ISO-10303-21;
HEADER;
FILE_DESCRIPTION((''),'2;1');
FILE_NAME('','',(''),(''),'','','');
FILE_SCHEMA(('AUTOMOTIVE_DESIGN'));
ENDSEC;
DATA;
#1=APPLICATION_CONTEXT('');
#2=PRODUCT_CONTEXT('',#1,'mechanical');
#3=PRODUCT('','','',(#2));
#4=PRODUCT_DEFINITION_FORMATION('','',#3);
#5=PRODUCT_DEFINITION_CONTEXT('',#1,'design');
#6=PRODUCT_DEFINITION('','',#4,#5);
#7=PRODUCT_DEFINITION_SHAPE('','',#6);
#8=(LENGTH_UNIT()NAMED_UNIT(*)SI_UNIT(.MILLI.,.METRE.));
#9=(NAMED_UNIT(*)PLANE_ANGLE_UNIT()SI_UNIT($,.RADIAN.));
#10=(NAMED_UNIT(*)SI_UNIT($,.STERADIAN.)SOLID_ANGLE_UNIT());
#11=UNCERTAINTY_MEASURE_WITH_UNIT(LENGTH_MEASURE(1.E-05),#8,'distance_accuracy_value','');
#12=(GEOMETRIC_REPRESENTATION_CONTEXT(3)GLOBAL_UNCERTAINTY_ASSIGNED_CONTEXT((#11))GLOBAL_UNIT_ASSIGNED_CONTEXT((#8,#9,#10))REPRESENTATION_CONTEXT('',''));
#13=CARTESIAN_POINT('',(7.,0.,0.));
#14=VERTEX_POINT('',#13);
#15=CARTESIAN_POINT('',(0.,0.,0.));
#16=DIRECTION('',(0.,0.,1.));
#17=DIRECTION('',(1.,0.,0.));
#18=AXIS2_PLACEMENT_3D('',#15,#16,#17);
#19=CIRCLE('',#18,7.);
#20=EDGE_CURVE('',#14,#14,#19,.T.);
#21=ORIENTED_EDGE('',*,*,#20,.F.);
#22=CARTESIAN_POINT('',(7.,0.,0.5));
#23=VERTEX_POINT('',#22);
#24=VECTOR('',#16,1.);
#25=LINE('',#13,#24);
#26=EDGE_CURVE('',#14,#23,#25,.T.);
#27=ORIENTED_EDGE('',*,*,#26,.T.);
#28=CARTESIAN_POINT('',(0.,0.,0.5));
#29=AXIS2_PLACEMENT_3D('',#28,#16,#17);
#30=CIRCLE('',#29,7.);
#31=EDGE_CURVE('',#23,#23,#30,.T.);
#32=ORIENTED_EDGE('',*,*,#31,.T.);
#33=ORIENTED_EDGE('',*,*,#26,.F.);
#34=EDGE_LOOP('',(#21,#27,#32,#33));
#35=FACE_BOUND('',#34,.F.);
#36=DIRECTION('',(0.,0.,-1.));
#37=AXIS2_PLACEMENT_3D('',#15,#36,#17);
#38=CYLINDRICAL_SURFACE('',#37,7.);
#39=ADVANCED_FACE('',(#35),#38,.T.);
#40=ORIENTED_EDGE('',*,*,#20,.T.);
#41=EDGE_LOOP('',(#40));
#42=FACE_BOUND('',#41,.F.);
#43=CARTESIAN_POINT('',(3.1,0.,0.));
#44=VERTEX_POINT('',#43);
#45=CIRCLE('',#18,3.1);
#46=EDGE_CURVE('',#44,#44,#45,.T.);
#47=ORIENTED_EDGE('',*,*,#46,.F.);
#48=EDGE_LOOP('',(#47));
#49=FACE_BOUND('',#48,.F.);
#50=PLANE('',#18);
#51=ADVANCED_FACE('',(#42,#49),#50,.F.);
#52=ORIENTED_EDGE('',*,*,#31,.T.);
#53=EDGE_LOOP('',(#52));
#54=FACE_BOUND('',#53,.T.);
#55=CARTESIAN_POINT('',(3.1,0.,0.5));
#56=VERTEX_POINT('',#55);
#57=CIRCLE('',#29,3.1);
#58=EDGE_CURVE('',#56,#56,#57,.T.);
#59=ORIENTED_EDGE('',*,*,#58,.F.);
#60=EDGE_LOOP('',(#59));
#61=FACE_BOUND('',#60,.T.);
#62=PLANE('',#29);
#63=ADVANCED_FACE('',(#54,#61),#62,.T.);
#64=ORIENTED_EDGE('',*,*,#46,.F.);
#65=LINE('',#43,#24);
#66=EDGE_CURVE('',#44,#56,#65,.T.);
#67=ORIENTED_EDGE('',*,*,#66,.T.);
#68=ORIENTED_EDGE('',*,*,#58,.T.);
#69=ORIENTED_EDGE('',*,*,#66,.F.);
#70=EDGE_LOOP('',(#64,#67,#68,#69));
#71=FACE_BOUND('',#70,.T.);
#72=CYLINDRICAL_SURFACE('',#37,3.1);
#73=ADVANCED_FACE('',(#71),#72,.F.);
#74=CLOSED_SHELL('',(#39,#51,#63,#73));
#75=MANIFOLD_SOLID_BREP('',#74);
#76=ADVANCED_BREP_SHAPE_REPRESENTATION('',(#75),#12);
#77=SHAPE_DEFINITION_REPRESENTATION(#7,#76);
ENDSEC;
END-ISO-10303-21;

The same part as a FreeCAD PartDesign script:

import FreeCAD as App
import Part
import Sketcher
from FreeCAD import Vector
Q = App.Units.Quantity

doc = App.newDocument("Part")
body = doc.addObject("PartDesign::Body", "Body")

# Sketch on XY plane
sketch1 = body.newObject("Sketcher::SketchObject", "Sketch")
sketch1.AttachmentSupport = (doc.getObject("XY_Plane"), [""])
sketch1.MapMode = "FlatFace"
sketch1.addGeometry([
    Part.Circle(Vector(0, 0, 0), Vector(0, 0, 1), 7),
    Part.Circle(Vector(0, 0, 0), Vector(0, 0, 1), 3.1),
], False)
sketch1.addConstraint([
    Sketcher.Constraint("Coincident", 0, 3, -1, 1),
    Sketcher.Constraint("Coincident", 1, 3, -1, 1),
    Sketcher.Constraint("Diameter", 0, Q("14 mm")),
    Sketcher.Constraint("Diameter", 1, Q("6.2 mm")),
])
pad1 = body.newObject("PartDesign::Pad", "Pad")
pad1.Profile = sketch1
pad1.Length = 0.5

doc.recompute()
